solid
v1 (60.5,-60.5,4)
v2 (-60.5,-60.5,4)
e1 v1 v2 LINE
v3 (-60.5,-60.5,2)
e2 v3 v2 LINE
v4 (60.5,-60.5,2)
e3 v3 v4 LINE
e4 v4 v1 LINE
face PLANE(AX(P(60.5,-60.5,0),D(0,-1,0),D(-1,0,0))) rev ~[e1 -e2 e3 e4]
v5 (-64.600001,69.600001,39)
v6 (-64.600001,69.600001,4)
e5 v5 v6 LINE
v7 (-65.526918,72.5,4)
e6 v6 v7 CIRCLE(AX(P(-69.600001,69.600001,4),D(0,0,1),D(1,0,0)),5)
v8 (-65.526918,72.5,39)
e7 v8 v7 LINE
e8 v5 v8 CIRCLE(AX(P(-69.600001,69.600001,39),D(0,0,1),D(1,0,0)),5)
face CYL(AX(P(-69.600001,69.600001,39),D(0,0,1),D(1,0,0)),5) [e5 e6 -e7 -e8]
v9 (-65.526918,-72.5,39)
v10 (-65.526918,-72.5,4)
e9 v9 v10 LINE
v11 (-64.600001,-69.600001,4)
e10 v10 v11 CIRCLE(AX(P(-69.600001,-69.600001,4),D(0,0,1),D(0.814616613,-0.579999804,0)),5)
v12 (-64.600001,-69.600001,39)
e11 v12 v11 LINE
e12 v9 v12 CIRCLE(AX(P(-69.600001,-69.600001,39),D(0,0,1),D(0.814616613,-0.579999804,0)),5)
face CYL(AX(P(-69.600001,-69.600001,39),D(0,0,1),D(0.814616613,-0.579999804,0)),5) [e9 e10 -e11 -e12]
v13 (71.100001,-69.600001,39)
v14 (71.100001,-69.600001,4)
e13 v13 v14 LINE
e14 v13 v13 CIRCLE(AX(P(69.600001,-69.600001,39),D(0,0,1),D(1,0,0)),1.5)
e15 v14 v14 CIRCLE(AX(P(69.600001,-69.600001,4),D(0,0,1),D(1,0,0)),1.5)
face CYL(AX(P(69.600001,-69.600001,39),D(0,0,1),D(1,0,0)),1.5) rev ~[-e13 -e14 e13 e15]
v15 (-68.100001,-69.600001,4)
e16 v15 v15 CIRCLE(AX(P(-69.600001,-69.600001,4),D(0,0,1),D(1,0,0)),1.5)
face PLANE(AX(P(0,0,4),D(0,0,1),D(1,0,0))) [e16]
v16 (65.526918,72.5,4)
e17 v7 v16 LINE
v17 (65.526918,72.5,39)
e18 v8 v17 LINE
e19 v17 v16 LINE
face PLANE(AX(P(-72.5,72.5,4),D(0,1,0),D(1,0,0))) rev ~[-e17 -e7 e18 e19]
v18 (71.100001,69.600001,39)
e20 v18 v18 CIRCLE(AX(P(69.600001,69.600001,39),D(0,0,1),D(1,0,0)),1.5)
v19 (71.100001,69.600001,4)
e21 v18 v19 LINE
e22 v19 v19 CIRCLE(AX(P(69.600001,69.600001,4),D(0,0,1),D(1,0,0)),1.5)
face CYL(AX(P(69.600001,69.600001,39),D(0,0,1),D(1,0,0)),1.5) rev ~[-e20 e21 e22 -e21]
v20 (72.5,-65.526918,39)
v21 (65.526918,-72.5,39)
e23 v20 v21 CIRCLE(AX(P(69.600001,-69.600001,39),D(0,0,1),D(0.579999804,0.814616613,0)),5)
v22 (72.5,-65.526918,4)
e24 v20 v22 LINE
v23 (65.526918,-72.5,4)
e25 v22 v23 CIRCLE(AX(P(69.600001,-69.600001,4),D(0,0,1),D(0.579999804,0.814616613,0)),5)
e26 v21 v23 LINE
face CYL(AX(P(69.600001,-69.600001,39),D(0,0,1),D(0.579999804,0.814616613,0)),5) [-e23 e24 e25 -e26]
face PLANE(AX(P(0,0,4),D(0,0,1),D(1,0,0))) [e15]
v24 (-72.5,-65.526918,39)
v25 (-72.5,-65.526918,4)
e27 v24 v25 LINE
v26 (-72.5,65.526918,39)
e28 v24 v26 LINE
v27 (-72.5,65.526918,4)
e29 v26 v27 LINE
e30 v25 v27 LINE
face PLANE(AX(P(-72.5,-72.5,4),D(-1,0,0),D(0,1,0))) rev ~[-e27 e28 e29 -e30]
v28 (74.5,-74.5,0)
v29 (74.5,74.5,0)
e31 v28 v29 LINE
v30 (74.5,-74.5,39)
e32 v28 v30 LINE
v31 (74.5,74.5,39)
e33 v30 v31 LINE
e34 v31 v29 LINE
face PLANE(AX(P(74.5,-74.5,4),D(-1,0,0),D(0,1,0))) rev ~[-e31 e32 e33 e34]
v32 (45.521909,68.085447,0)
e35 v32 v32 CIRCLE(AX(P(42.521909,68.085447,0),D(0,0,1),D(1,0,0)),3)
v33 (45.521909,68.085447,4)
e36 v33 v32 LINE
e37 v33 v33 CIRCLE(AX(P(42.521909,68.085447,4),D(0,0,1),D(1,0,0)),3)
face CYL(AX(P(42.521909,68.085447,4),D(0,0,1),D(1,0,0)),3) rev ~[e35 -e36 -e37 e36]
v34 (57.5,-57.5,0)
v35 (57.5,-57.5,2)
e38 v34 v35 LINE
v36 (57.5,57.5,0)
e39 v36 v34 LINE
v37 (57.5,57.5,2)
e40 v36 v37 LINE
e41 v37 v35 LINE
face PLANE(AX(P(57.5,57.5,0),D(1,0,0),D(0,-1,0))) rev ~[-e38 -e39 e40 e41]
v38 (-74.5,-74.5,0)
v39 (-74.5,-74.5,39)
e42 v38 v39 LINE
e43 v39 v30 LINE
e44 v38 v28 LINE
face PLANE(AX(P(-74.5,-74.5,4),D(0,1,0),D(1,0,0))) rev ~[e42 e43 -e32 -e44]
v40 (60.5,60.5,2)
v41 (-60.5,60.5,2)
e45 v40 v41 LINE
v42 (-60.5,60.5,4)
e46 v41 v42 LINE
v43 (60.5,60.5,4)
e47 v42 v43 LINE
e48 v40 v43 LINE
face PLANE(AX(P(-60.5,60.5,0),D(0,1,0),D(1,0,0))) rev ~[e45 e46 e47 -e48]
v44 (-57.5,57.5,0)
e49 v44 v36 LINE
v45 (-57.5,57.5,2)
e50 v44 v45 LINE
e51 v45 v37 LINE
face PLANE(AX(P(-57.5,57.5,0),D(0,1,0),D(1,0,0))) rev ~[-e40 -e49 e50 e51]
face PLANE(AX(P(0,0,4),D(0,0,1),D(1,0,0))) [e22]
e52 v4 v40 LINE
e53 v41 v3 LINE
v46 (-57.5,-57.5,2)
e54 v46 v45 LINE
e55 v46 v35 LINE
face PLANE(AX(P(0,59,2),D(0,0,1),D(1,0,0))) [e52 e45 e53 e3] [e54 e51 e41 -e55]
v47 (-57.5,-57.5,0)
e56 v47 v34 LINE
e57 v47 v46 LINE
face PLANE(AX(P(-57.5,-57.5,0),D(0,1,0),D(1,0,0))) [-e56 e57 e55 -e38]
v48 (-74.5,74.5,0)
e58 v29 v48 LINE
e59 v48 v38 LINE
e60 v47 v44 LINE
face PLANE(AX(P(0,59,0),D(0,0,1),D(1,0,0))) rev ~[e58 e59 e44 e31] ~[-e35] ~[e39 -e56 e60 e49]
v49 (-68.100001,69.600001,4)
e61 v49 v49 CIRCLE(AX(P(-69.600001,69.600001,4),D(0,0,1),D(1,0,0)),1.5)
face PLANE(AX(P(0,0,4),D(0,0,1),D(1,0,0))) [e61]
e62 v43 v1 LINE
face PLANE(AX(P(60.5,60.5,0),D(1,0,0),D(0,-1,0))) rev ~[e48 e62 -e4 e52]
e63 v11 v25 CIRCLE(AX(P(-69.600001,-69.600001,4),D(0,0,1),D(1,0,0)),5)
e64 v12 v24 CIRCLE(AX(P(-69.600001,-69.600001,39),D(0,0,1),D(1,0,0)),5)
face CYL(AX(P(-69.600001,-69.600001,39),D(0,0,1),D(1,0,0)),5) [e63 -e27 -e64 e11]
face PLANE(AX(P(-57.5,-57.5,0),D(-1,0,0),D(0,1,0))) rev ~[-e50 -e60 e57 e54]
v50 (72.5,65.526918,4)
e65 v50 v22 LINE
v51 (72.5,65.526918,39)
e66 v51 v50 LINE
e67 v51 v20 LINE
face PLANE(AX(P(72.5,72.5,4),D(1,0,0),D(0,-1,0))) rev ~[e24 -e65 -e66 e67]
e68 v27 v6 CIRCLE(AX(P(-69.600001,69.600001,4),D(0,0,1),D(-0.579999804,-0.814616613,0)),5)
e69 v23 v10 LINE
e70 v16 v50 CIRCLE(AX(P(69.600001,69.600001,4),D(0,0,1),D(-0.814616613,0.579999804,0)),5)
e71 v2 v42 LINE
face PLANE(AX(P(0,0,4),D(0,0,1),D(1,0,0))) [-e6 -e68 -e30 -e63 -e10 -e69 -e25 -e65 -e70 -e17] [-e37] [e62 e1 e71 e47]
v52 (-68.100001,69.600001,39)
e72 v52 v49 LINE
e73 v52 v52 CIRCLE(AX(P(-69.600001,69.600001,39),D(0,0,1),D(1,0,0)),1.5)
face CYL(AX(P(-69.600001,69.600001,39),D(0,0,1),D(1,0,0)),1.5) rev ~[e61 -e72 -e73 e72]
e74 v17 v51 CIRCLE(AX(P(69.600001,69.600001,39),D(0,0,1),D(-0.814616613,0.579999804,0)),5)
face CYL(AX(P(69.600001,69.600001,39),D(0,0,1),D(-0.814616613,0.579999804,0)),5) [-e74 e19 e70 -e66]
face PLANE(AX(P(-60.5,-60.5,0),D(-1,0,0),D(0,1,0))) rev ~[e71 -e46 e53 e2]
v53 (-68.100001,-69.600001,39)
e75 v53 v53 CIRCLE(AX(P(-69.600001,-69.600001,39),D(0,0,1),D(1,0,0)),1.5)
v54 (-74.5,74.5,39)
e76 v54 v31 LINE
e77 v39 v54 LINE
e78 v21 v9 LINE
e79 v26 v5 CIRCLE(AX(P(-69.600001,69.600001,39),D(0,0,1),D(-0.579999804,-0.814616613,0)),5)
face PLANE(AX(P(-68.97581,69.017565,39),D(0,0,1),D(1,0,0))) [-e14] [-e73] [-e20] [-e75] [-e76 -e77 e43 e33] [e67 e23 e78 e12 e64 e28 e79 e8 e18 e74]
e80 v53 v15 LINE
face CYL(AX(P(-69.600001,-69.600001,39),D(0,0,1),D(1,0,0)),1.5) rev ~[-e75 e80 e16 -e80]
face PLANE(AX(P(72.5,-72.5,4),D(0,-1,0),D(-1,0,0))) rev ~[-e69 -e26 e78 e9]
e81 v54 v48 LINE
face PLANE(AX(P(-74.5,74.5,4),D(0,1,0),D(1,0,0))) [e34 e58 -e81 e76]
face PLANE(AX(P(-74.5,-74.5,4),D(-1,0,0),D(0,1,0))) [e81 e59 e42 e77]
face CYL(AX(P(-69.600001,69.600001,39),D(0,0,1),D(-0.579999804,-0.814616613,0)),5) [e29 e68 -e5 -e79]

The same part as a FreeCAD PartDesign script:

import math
import FreeCAD as App
import Part
import Sketcher
from FreeCAD import Vector
Q = App.Units.Quantity


def add_polygon(sketch, points):
    """Adds a closed chain of lines whose ends are joined by coincident constraints."""
    first, n = sketch.GeometryCount, len(points)
    for a, b in zip(points, points[1:] + points[:1]):
        sketch.addGeometry(Part.LineSegment(App.Vector(*a, 0), App.Vector(*b, 0)), False)
    for i in range(n):
        sketch.addConstraint(Sketcher.Constraint("Coincident", first + i, 2, first + (i + 1) % n, 1))

doc = App.newDocument("Part")
body = doc.addObject("PartDesign::Body", "Body")

sketch1 = doc.addObject("Sketcher::SketchObject", "Sketch")
body.addObject(sketch1)
sketch1.AttachmentSupport = (doc.XY_Plane, [""])
sketch1.MapMode = "FlatFace"
add_polygon(sketch1, [(74, 74), (-74, 74), (-74, -74), (74, -74)])
add_polygon(sketch1, [(-60, 60), (60, 60), (60, -60), (-60, -60)])
sketch1.addConstraint([
    Sketcher.Constraint("Horizontal", 0),
    Sketcher.Constraint("Vertical", 1),
    Sketcher.Constraint("Horizontal", 2),
    Sketcher.Constraint("Vertical", 3),
    Sketcher.Constraint("Horizontal", 4),
    Sketcher.Constraint("Vertical", 5),
    Sketcher.Constraint("Horizontal", 6),
    Sketcher.Constraint("Vertical", 7),
    Sketcher.Constraint("Symmetric", 0, 2, 2, 2, -1, 1),
    Sketcher.Constraint("Symmetric", 4, 2, 6, 2, -1, 1),
    Sketcher.Constraint("Equal", 2, 1),
    Sketcher.Constraint("Equal", 6, 5),
    Sketcher.Constraint("DistanceX", 0, 2, 0, 1, Q("149 mm")),
    Sketcher.Constraint("DistanceX", 4, 1, 4, 2, Q("121 mm")),
])
pad1 = doc.addObject("PartDesign::Pad", "Pad")
body.addObject(pad1)
pad1.Profile = sketch1
pad1.Length = 4

sketch2 = doc.addObject("Sketcher::SketchObject", "Sketch001")
body.addObject(sketch2)
sketch2.AttachmentSupport = (doc.XY_Plane, [""])
sketch2.MapMode = "FlatFace"
add_polygon(sketch2, [(60, 60), (-60, 60), (-60, -60), (60, -60)])
add_polygon(sketch2, [(-58, -58), (-58, 58), (58, 58), (58, -58)])
sketch2.addConstraint([
    Sketcher.Constraint("Horizontal", 0),
    Sketcher.Constraint("Vertical", 1),
    Sketcher.Constraint("Horizontal", 2),
    Sketcher.Constraint("Vertical", 3),
    Sketcher.Constraint("Vertical", 4),
    Sketcher.Constraint("Horizontal", 5),
    Sketcher.Constraint("Vertical", 6),
    Sketcher.Constraint("Horizontal", 7),
    Sketcher.Constraint("Symmetric", 0, 2, 2, 2, -1, 1),
    Sketcher.Constraint("Symmetric", 4, 2, 6, 2, -1, 1),
    Sketcher.Constraint("Equal", 2, 1),
    Sketcher.Constraint("Equal", 7, 4),
    Sketcher.Constraint("DistanceX", 0, 2, 0, 1, Q("121 mm")),
    Sketcher.Constraint("DistanceX", 5, 1, 5, 2, Q("115 mm")),
])
pad2 = doc.addObject("PartDesign::Pad", "Pad001")
body.addObject(pad2)
pad2.Profile = sketch2
pad2.Length = 2

sketch3 = doc.addObject("Sketcher::SketchObject", "Sketch002")
body.addObject(sketch3)
sketch3.AttachmentSupport = (doc.XY_Plane, [""])
sketch3.MapMode = "FlatFace"
sketch3.AttachmentOffset = App.Placement(Vector(0, 0, 4), App.Rotation())
sketch3.addGeometry(Part.Circle(Vector(42.5, 68.1, 0), Vector(0, 0, 1), 3), False)
sketch3.addConstraint([
    Sketcher.Constraint("Diameter", 0, Q("6 mm")),
    Sketcher.Constraint("DistanceX", -1, 1, 0, 3, Q("42.521909 mm")),
    Sketcher.Constraint("DistanceY", -1, 1, 0, 3, Q("68.085447 mm")),
])
pocket1 = doc.addObject("PartDesign::Pocket", "Pocket")
body.addObject(pocket1)
pocket1.Profile = sketch3
pocket1.Type = "ThroughAll"

sketch4 = doc.addObject("Sketcher::SketchObject", "Sketch003")
body.addObject(sketch4)
sketch4.AttachmentSupport = (doc.XY_Plane, [""])
sketch4.MapMode = "FlatFace"
sketch4.AttachmentOffset = App.Placement(Vector(0, 0, 4), App.Rotation())
add_polygon(sketch4, [(-74, 74), (-74, -74), (74, -74), (74, 74)])
add_polygon(sketch4, [(-72, 72), (72, 72), (72, -72), (-72, -72)])
sketch4.addConstraint([
    Sketcher.Constraint("Vertical", 0),
    Sketcher.Constraint("Horizontal", 1),
    Sketcher.Constraint("Vertical", 2),
    Sketcher.Constraint("Horizontal", 3),
    Sketcher.Constraint("Horizontal", 4),
    Sketcher.Constraint("Vertical", 5),
    Sketcher.Constraint("Horizontal", 6),
    Sketcher.Constraint("Vertical", 7),
    Sketcher.Constraint("Symmetric", 0, 2, 2, 2, -1, 1),
    Sketcher.Constraint("Symmetric", 4, 2, 6, 2, -1, 1),
    Sketcher.Constraint("Equal", 3, 0),
    Sketcher.Constraint("Equal", 6, 5),
    Sketcher.Constraint("DistanceX", 1, 1, 1, 2, Q("149 mm")),
    Sketcher.Constraint("DistanceX", 4, 1, 4, 2, Q("145 mm")),
])
pad3 = doc.addObject("PartDesign::Pad", "Pad002")
body.addObject(pad3)
pad3.Profile = sketch4
pad3.Length = 35

sketch5 = doc.addObject("Sketcher::SketchObject", "Sketch004")
body.addObject(sketch5)
sketch5.AttachmentSupport = (doc.XY_Plane, [""])
sketch5.MapMode = "FlatFace"
sketch5.AttachmentOffset = App.Placement(Vector(0, 0, 39), App.Rotation())
sketch5.addGeometry([
    Part.ArcOfCircle(Part.Circle(Vector(-69.6, 69.6, 0), Vector(0, 0, 1), 5), math.radians(-125), math.radians(0)),
    Part.ArcOfCircle(Part.Circle(Vector(-69.6, 69.6, 0), Vector(0, 0, 1), 5), math.radians(0), math.radians(35)),
    Part.LineSegment(Vector(-65.5, 72.5, 0), Vector(-72.5, 72.5, 0)),
    Part.LineSegment(Vector(-72.5, 72.5, 0), Vector(-72.5, 65.5, 0)),
    Part.Circle(Vector(-69.6, 69.6, 0), Vector(0, 0, 1), 1.5),
    Part.LineSegment(Vector(72.5, 72.5, 0), Vector(65.5, 72.5, 0)),
    Part.ArcOfCircle(Part.Circle(Vector(69.6, 69.6, 0), Vector(0, 0, 1), 5), math.radians(145), math.radians(305)),
    Part.LineSegment(Vector(72.5, 65.5, 0), Vector(72.5, 72.5, 0)),
    Part.Circle(Vector(69.6, 69.6, 0), Vector(0, 0, 1), 1.5),
    Part.LineSegment(Vector(72.5, -72.5, 0), Vector(72.5, -65.5, 0)),
    Part.ArcOfCircle(Part.Circle(Vector(69.6, -69.6, 0), Vector(0, 0, 1), 5), math.radians(55), math.radians(215)),
    Part.LineSegment(Vector(65.5, -72.5, 0), Vector(72.5, -72.5, 0)),
    Part.Circle(Vector(69.6, -69.6, 0), Vector(0, 0, 1), 1.5),
    Part.ArcOfCircle(Part.Circle(Vector(-69.6, -69.6, 0), Vector(0, 0, 1), 5), math.radians(0), math.radians(125)),
    Part.LineSegment(Vector(-72.5, -65.5, 0), Vector(-72.5, -72.5, 0)),
    Part.LineSegment(Vector(-72.5, -72.5, 0), Vector(-65.5, -72.5, 0)),
    Part.ArcOfCircle(Part.Circle(Vector(-69.6, -69.6, 0), Vector(0, 0, 1), 5), math.radians(-35), math.radians(0)),
    Part.Circle(Vector(-69.6, -69.6, 0), Vector(0, 0, 1), 1.5),
], False)
sketch5.addConstraint([
    Sketcher.Constraint("Tangent", 0, 2, 1, 1),
    Sketcher.Constraint("Coincident", 1, 2, 2, 1),
    Sketcher.Constraint("Coincident", 2, 2, 3, 1),
    Sketcher.Constraint("Coincident", 3, 2, 0, 1),
    Sketcher.Constraint("Coincident", 5, 2, 6, 1),
    Sketcher.Constraint("Coincident", 6, 2, 7, 1),
    Sketcher.Constraint("Coincident", 7, 2, 5, 1),
    Sketcher.Constraint("Coincident", 9, 2, 10, 1),
    Sketcher.Constraint("Coincident", 10, 2, 11, 1),
    Sketcher.Constraint("Coincident", 11, 2, 9, 1),
    Sketcher.Constraint("Coincident", 13, 2, 14, 1),
    Sketcher.Constraint("Coincident", 14, 2, 15, 1),
    Sketcher.Constraint("Coincident", 15, 2, 16, 1),
    Sketcher.Constraint("Tangent", 16, 2, 13, 1),
    Sketcher.Constraint("Horizontal", 2),
    Sketcher.Constraint("Vertical", 3),
    Sketcher.Constraint("Horizontal", 5),
    Sketcher.Constraint("Vertical", 7),
    Sketcher.Constraint("Vertical", 9),
    Sketcher.Constraint("Horizontal", 11),
    Sketcher.Constraint("Vertical", 14),
    Sketcher.Constraint("Horizontal", 15),
    Sketcher.Constraint("Coincident", 4, 3, 0, 3),
    Sketcher.Constraint("Coincident", 8, 3, 6, 3),
    Sketcher.Constraint("Coincident", 12, 3, 10, 3),
    Sketcher.Constraint("Coincident", 17, 3, 13, 3),
    Sketcher.Constraint("Equal", 0, 1),
    Sketcher.Constraint("Equal", 1, 6),
    Sketcher.Constraint("Equal", 4, 8),
    Sketcher.Constraint("Equal", 6, 10),
    Sketcher.Constraint("Equal", 8, 12),
    Sketcher.Constraint("Equal", 10, 13),
    Sketcher.Constraint("Equal", 13, 16),
    Sketcher.Constraint("Equal", 12, 17),
    Sketcher.Constraint("Symmetric", 0, 3, 10, 3, -1, 1),
    Sketcher.Constraint("Symmetric", 6, 3, 13, 3, -1, 1),
    Sketcher.Constraint("Symmetric", 2, 2, 11, 2, -1, 1),
    Sketcher.Constraint("Symmetric", 7, 2, 14, 2, -1, 1),
    Sketcher.Constraint("Symmetric", 0, 3, 6, 3, -2),
    Sketcher.Constraint("Symmetric", 2, 2, 7, 2, -2),
    Sketcher.Constraint("Horizontal", 8, 3, 0, 2),
    Sketcher.Constraint("Horizontal", 17, 3, 16, 2),
    Sketcher.Constraint("Equal", 15, 3),
    Sketcher.Constraint("Diameter", 4, Q("3 mm")),
    Sketcher.Constraint("Radius", 0, Q("5 mm")),
    Sketcher.Constraint("DistanceX", 0, 3, -1, 1, Q("69.600001 mm")),
    Sketcher.Constraint("DistanceY", -1, 1, 0, 3, Q("69.600001 mm")),
    Sketcher.Constraint("DistanceY", -1, 1, 1, 2, Q("72.5 mm")),
])
pad4 = doc.addObject("PartDesign::Pad", "Pad003")
body.addObject(pad4)
pad4.Profile = sketch5
pad4.Length = 35
pad4.Reversed = True

doc.recompute()
